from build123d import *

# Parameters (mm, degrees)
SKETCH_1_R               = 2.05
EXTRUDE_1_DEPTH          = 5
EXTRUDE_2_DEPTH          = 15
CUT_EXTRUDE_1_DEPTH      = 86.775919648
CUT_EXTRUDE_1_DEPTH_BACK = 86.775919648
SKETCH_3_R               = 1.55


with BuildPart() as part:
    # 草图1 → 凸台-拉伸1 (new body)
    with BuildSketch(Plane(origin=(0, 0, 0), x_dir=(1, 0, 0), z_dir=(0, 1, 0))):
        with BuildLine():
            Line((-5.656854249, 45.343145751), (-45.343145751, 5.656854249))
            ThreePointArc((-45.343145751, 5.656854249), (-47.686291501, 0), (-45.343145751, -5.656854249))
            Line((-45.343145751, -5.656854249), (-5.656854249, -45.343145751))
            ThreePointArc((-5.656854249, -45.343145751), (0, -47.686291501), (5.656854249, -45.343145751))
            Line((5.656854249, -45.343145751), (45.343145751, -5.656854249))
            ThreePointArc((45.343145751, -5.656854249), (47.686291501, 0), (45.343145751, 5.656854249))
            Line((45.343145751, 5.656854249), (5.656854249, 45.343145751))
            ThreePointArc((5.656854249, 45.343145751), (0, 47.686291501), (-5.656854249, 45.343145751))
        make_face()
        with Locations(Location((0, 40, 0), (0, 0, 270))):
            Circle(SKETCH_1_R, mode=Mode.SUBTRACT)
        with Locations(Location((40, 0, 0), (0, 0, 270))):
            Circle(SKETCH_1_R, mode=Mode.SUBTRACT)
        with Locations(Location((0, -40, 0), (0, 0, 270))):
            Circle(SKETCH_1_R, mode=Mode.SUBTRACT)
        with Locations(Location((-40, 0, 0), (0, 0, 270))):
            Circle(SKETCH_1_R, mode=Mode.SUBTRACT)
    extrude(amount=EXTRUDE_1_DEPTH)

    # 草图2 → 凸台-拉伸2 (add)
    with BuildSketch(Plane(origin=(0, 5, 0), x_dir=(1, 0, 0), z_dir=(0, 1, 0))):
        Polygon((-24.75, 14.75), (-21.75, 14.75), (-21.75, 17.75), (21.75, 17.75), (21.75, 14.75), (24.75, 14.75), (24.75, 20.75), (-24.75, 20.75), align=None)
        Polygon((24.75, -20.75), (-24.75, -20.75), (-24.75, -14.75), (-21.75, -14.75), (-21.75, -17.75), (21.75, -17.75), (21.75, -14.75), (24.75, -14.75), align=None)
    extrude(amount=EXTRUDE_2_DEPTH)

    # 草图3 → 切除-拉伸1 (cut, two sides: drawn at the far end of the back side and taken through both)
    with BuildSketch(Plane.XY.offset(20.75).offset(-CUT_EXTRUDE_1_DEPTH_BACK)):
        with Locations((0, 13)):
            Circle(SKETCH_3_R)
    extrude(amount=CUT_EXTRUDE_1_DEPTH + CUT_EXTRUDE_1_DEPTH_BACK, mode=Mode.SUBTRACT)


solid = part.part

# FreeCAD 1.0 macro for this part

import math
import FreeCAD as App
import Part
import Sketcher
Q = App.Units.Quantity


def add_polygon(sketch, points):
    """Adds a closed chain of lines whose ends are joined by coincident constraints."""
    first, n = sketch.GeometryCount, len(points)
    for a, b in zip(points, points[1:] + points[:1]):
        sketch.addGeometry(Part.LineSegment(App.Vector(*a, 0), App.Vector(*b, 0)), False)
    for i in range(n):
        sketch.addConstraint(Sketcher.Constraint("Coincident", first + i, 2, first + (i + 1) % n, 1))

doc = App.newDocument("Part")
body = doc.addObject("PartDesign::Body", "Body")

# Sketch on XZ plane
sketch1 = body.newObject("Sketcher::SketchObject", "Sketch")
sketch1.AttachmentSupport = (doc.getObject("XZ_Plane"), [""])
sketch1.MapMode = "FlatFace"
sketch1.addGeometry([
    Part.LineSegment(App.Vector(-5.7, -45.3, 0), App.Vector(-45.3, -5.7, 0)),  # 0
    Part.ArcOfCircle(Part.Circle(App.Vector(-39.7, 0, 0), App.Vector(0, 0, 1), 8), math.radians(135), math.radians(225)),  # 1
    Part.LineSegment(App.Vector(-45.3, 5.7, 0), App.Vector(-5.7, 45.3, 0)),  # 2
    Part.ArcOfCircle(Part.Circle(App.Vector(0, 39.7, 0), App.Vector(0, 0, 1), 8), math.radians(45), math.radians(135)),  # 3
    Part.LineSegment(App.Vector(5.7, 45.3, 0), App.Vector(45.3, 5.7, 0)),  # 4
    Part.ArcOfCircle(Part.Circle(App.Vector(39.7, 0, 0), App.Vector(0, 0, 1), 8), math.radians(-45), math.radians(45)),  # 5
    Part.LineSegment(App.Vector(45.3, -5.7, 0), App.Vector(5.7, -45.3, 0)),  # 6
    Part.ArcOfCircle(Part.Circle(App.Vector(0, -39.7, 0), App.Vector(0, 0, 1), 8), math.radians(-135), math.radians(-45)),  # 7
    Part.Circle(App.Vector(0, 40, 0), App.Vector(0, 0, 1), 2),  # 8
    Part.Circle(App.Vector(-40, 0, 0), App.Vector(0, 0, 1), 2),  # 9
    Part.Circle(App.Vector(40, 0, 0), App.Vector(0, 0, 1), 2),  # 10
    Part.Circle(App.Vector(0, -40, 0), App.Vector(0, 0, 1), 2),  # 11
], False)
sketch1.addConstraint([
    Sketcher.Constraint("Tangent", 0, 2, 1, 2),
    Sketcher.Constraint("Tangent", 1, 1, 2, 1),
    Sketcher.Constraint("Tangent", 2, 2, 3, 2),
    Sketcher.Constraint("Tangent", 3, 1, 4, 1),
    Sketcher.Constraint("Tangent", 4, 2, 5, 2),
    Sketcher.Constraint("Tangent", 5, 1, 6, 1),
    Sketcher.Constraint("Tangent", 6, 2, 7, 2),
    Sketcher.Constraint("Tangent", 7, 1, 0, 1),
    Sketcher.Constraint("Equal", 1, 3),
    Sketcher.Constraint("Equal", 3, 5),
    Sketcher.Constraint("Equal", 5, 7),
    Sketcher.Constraint("Equal", 8, 9),
    Sketcher.Constraint("Equal", 9, 10),
    Sketcher.Constraint("Equal", 10, 11),
    Sketcher.Constraint("Symmetric", 1, 3, 5, 3, -1, 1),
    Sketcher.Constraint("Symmetric", 3, 3, 7, 3, -1, 1),
    Sketcher.Constraint("Symmetric", 9, 3, 10, 3, -1, 1),
    Sketcher.Constraint("Symmetric", 8, 3, 11, 3, -1, 1),
    Sketcher.Constraint("Symmetric", 2, 2, 3, 1, -2),
    Sketcher.Constraint("PointOnObject", 8, 3, -2),
    Sketcher.Constraint("PointOnObject", 9, 3, -1),
    Sketcher.Constraint("Perpendicular", 0, 2),
    Sketcher.Constraint("Radius", 1, Q("8 mm")),
    Sketcher.Constraint("Diameter", 8, Q("4.1 mm")),
    Sketcher.Constraint("DistanceY", -1, 1, 8, 3, Q("40 mm")),
    Sketcher.Constraint("DistanceX", 9, 3, -1, 1, Q("40 mm")),
    Sketcher.Constraint("Distance", 0, Q("56.124892 mm")),
])
pad1 = body.newObject("PartDesign::Pad", "Pad")
pad1.Profile = sketch1
pad1.Length = 5
pad1.Reversed = True

# Sketch on XZ plane
sketch2 = body.newObject("Sketcher::SketchObject", "Sketch001")
sketch2.AttachmentSupport = (doc.getObject("XZ_Plane"), [""])
sketch2.MapMode = "FlatFace"
sketch2.AttachmentOffset = App.Placement(App.Vector(0, 0, -5), App.Rotation())
add_polygon(sketch2, [(-24.8, -14.8), (-21.8, -14.8), (-21.8, -17.8), (21.8, -17.8), (21.8, -14.8), (24.8, -14.8), (24.8, -20.8), (-24.8, -20.8)])  # lines 0-7
add_polygon(sketch2, [(-24.8, 20.8), (24.8, 20.8), (24.8, 14.8), (21.8, 14.8), (21.8, 17.8), (-21.8, 17.8), (-21.8, 14.8), (-24.8, 14.8)])  # lines 8-15
sketch2.addConstraint([
    Sketcher.Constraint("Horizontal", 0),
    Sketcher.Constraint("Vertical", 1),
    Sketcher.Constraint("Horizontal", 2),
    Sketcher.Constraint("Vertical", 3),
    Sketcher.Constraint("Horizontal", 4),
    Sketcher.Constraint("Vertical", 5),
    Sketcher.Constraint("Horizontal", 6),
    Sketcher.Constraint("Vertical", 7),
    Sketcher.Constraint("Horizontal", 8),
    Sketcher.Constraint("Vertical", 9),
    Sketcher.Constraint("Horizontal", 10),
    Sketcher.Constraint("Vertical", 11),
    Sketcher.Constraint("Horizontal", 12),
    Sketcher.Constraint("Vertical", 13),
    Sketcher.Constraint("Horizontal", 14),
    Sketcher.Constraint("Vertical", 15),
    Sketcher.Constraint("Symmetric", 6, 2, 8, 2, -1, 1),
    Sketcher.Constraint("Symmetric", 0, 2, 10, 2, -1, 1),
    Sketcher.Constraint("Symmetric", 2, 2, 12, 2, -1, 1),
    Sketcher.Constraint("Symmetric", 4, 2, 14, 2, -1, 1),
    Sketcher.Constraint("Symmetric", 0, 2, 3, 2, -2),
    Sketcher.Constraint("Vertical", 5, 2, 8, 2),
    Sketcher.Constraint("Equal", 14, 1),
    Sketcher.Constraint("DistanceX", 0, 1, 0, 2, Q("3 mm")),
    Sketcher.Constraint("DistanceY", 5, 2, 5, 1, Q("6 mm")),
    Sketcher.Constraint("DistanceX", 2, 1, 2, 2, Q("43.5 mm")),
    Sketcher.Constraint("DistanceY", 4, 2, 8, 2, Q("35.5 mm")),
])
pad2 = body.newObject("PartDesign::Pad", "Pad001")
pad2.Profile = sketch2
pad2.Length = 15
pad2.Reversed = True

# Sketch on XY plane
sketch3 = body.newObject("Sketcher::SketchObject", "Sketch002")
sketch3.AttachmentSupport = (doc.getObject("XY_Plane"), [""])
sketch3.MapMode = "FlatFace"
sketch3.AttachmentOffset = App.Placement(App.Vector(0, 0, 20.75), App.Rotation())
sketch3.addGeometry(Part.Circle(App.Vector(0, 13, 0), App.Vector(0, 0, 1), 1.6), False)
sketch3.addConstraint([
    Sketcher.Constraint("PointOnObject", 0, 3, -2),
    Sketcher.Constraint("Diameter", 0, Q("3.1 mm")),
    Sketcher.Constraint("DistanceY", -1, 1, 0, 3, Q("13 mm")),
])
pocket1 = body.newObject("PartDesign::Pocket", "Pocket")
pocket1.Profile = sketch3
pocket1.Type = "ThroughAll"
pocket1.Midplane = True

doc.recompute()
